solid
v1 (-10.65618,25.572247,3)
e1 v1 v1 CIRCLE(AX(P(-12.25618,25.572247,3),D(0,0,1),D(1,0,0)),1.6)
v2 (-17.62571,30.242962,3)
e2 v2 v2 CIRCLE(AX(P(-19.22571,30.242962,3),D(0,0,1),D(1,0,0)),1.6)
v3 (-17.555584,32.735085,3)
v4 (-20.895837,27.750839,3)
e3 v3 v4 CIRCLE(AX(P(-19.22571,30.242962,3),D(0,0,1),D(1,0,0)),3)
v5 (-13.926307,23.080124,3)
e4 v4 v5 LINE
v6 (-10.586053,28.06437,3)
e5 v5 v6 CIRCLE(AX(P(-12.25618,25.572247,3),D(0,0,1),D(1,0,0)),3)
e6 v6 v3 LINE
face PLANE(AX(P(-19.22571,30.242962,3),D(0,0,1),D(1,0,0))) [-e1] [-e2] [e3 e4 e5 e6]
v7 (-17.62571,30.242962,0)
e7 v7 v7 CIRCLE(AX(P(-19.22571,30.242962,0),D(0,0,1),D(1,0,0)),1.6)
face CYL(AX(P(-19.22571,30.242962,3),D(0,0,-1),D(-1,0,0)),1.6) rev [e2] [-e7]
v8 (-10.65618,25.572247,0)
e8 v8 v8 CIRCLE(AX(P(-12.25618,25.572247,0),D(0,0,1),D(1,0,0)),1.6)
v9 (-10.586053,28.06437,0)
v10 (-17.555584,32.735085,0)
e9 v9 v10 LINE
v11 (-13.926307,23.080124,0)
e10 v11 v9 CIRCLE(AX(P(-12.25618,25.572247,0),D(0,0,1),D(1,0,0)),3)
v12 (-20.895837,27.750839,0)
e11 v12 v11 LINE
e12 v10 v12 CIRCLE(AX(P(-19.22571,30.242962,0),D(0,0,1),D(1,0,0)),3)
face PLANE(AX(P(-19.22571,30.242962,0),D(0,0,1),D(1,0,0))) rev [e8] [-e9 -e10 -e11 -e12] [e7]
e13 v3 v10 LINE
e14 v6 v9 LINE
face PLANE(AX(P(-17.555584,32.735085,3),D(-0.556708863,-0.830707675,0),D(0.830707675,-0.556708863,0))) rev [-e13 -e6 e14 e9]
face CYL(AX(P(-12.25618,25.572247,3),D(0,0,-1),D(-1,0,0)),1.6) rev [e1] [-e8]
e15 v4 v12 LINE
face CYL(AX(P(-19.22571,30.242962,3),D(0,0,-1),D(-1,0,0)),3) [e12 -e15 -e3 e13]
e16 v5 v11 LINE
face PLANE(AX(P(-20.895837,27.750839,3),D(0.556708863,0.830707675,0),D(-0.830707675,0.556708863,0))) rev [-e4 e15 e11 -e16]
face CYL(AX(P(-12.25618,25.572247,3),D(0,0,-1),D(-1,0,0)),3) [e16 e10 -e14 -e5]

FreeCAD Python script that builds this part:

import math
import FreeCAD as App
import Part
import Sketcher
from FreeCAD import Vector

doc = App.newDocument("Part")
body = doc.addObject("PartDesign::Body", "Body")

sketch1 = body.newObject("Sketcher::SketchObject", "Sketch")
sketch1.AttachmentSupport = (doc.getObject("XY_Plane"), [""])
sketch1.MapMode = "FlatFace"
sketch1.addGeometry(Part.LineSegment(Vector(-20.9, 27.8, 0), Vector(-13.9, 23.1, 0)), False)
sketch1.addGeometry(Part.ArcOfCircle(Part.Circle(Vector(-12.3, 25.6, 0), Vector(0, 0, 1), 3), math.radians(-124), math.radians(56)), False)
sketch1.addGeometry(Part.LineSegment(Vector(-10.6, 28.1, 0), Vector(-17.6, 32.7, 0)), False)
sketch1.addGeometry(Part.ArcOfCircle(Part.Circle(Vector(-19.2, 30.2, 0), Vector(0, 0, 1), 3), math.radians(56), math.radians(236)), False)
sketch1.addGeometry(Part.Circle(Vector(-12.3, 25.6, 0), Vector(0, 0, 1), 1.6), False)
sketch1.addGeometry(Part.Circle(Vector(-19.2, 30.2, 0), Vector(0, 0, 1), 1.6), False)
sketch1.addConstraint(Sketcher.Constraint("Tangent", 0, 2, 1, 1))
sketch1.addConstraint(Sketcher.Constraint("Tangent", 1, 2, 2, 1))
sketch1.addConstraint(Sketcher.Constraint("Tangent", 2, 2, 3, 1))
sketch1.addConstraint(Sketcher.Constraint("Tangent", 3, 2, 0, 1))
sketch1.addConstraint(Sketcher.Constraint("Coincident", 4, 3, 1, 3))
sketch1.addConstraint(Sketcher.Constraint("Coincident", 5, 3, 3, 3))
sketch1.addConstraint(Sketcher.Constraint("Equal", 1, 3))
sketch1.addConstraint(Sketcher.Constraint("Equal", 4, 5))
sketch1.addConstraint(Sketcher.Constraint("Radius", 1, 3.0))
sketch1.addConstraint(Sketcher.Constraint("Diameter", 4, 3.2))
sketch1.addConstraint(Sketcher.Constraint("Distance", 0, 8.389871))
sketch1.addConstraint(Sketcher.Constraint("DistanceX", 1, 3, -1, 1, 12.25618))
sketch1.addConstraint(Sketcher.Constraint("DistanceX", 3, 3, -1, 1, 19.22571))
sketch1.addConstraint(Sketcher.Constraint("DistanceY", -1, 1, 1, 2, 28.06437))
pad1 = body.newObject("PartDesign::Pad", "Pad")
pad1.Profile = sketch1
pad1.Length = 3

doc.recompute()
